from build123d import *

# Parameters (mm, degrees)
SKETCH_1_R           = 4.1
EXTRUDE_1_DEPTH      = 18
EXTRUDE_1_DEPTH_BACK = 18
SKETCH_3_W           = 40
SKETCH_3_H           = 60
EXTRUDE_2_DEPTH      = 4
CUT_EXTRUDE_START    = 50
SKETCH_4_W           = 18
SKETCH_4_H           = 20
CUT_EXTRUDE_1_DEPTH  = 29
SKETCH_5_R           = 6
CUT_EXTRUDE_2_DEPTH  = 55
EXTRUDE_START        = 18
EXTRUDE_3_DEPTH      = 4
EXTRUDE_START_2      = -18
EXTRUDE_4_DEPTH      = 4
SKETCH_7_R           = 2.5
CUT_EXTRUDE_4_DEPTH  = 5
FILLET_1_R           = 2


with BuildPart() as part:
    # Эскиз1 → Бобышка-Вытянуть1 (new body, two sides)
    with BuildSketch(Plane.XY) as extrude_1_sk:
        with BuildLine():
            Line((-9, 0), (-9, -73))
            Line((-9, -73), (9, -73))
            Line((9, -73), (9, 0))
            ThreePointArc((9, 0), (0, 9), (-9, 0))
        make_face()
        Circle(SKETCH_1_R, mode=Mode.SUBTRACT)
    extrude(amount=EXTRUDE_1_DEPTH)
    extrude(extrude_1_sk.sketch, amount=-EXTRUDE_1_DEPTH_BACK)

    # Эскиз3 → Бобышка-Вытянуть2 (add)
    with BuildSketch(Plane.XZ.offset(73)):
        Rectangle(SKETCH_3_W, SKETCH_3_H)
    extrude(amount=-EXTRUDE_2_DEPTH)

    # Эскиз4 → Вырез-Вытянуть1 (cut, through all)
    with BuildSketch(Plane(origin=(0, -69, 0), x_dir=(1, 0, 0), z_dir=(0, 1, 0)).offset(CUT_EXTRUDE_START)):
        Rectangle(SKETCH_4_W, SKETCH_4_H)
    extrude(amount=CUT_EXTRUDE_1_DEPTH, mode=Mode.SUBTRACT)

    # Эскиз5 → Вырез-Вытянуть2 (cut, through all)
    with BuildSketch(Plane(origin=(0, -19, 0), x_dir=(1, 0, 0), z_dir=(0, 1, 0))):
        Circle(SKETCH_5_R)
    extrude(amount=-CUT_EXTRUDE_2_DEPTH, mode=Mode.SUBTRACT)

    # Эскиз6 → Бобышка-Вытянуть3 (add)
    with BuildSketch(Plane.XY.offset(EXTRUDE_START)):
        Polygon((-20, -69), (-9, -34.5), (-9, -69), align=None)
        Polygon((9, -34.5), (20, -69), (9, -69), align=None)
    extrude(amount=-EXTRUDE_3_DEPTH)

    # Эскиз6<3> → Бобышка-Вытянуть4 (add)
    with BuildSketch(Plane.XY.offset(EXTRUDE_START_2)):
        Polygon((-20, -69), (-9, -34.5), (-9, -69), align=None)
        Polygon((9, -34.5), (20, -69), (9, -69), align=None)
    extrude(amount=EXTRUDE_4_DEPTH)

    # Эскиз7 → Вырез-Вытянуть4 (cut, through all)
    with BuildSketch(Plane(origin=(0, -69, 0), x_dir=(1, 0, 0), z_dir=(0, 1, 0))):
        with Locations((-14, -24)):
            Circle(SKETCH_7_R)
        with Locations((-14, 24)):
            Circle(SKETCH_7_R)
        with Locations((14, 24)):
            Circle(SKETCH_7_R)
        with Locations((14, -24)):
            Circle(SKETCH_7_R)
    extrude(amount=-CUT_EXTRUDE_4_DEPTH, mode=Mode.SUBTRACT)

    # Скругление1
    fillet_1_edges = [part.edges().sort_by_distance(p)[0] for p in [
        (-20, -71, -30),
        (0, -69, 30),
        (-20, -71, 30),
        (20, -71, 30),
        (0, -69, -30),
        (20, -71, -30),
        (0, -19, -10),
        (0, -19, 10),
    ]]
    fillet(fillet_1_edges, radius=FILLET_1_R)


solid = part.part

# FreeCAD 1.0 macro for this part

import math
import FreeCAD as App
import Part
import Sketcher

V = App.Vector


def edges_at(feature, points):
    """Names of the edges that pass closest to the given points."""
    edges = feature.Shape.Edges
    near = lambda p: min(range(len(edges)), key=lambda i: edges[i].distToShape(Part.Vertex(*p))[0])
    return sorted({f"Edge{near(p) + 1}" for p in points})


def add_polygon(sketch, points):
    """Adds a closed chain of lines whose ends are joined by coincident constraints."""
    first, n = sketch.GeometryCount, len(points)
    for a, b in zip(points, points[1:] + points[:1]):
        sketch.addGeometry(Part.LineSegment(App.Vector(*a, 0), App.Vector(*b, 0)), False)
    for i in range(n):
        sketch.addConstraint(Sketcher.Constraint("Coincident", first + i, 2, first + (i + 1) % n, 1))

doc = App.newDocument("Part")
body = doc.addObject("PartDesign::Body", "Body")

sketch1 = body.newObject("Sketcher::SketchObject", "Sketch")
sketch1.AttachmentSupport = (doc.getObject("XY_Plane"), [""])
sketch1.MapMode = "FlatFace"
sketch1.addGeometry(Part.LineSegment(V(-9, 0, 0), V(-9, -73, 0)), False)
sketch1.addGeometry(Part.LineSegment(V(-9, -73, 0), V(9, -73, 0)), False)
sketch1.addGeometry(Part.LineSegment(V(9, -73, 0), V(9, 0, 0)), False)
sketch1.addGeometry(Part.ArcOfCircle(Part.Circle(V(0, 0, 0), V(0, 0, 1), 9), math.radians(0), math.radians(180)), False)
sketch1.addGeometry(Part.Circle(V(0, 0, 0), V(0, 0, 1), 4.1), False)
sketch1.addConstraint(Sketcher.Constraint("Coincident", 0, 2, 1, 1))
sketch1.addConstraint(Sketcher.Constraint("Coincident", 1, 2, 2, 1))
sketch1.addConstraint(Sketcher.Constraint("Tangent", 2, 2, 3, 1))
sketch1.addConstraint(Sketcher.Constraint("Tangent", 3, 2, 0, 1))
sketch1.addConstraint(Sketcher.Constraint("Vertical", 0))
sketch1.addConstraint(Sketcher.Constraint("Horizontal", 1))
sketch1.addConstraint(Sketcher.Constraint("Vertical", 2))
sketch1.addConstraint(Sketcher.Constraint("Coincident", 3, 3, -1, 1))
sketch1.addConstraint(Sketcher.Constraint("Coincident", 4, 3, -1, 1))
sketch1.addConstraint(Sketcher.Constraint("Radius", 3, 9.0))
sketch1.addConstraint(Sketcher.Constraint("Diameter", 4, 8.2))
sketch1.addConstraint(Sketcher.Constraint("DistanceY", 0, 2, 0, 1, 73.0))
pad1 = body.newObject("PartDesign::Pad", "Pad")
pad1.Profile = sketch1
pad1.Type = "TwoLengths"
pad1.Length = 18
pad1.Length2 = 18

sketch2 = body.newObject("Sketcher::SketchObject", "Sketch001")
sketch2.AttachmentSupport = (doc.getObject("XZ_Plane"), [""])
sketch2.MapMode = "FlatFace"
sketch2.AttachmentOffset = App.Placement(V(0, 0, 73), App.Rotation())
add_polygon(sketch2, [(-20, 30), (-20, -30), (20, -30), (20, 30)])
sketch2.addConstraint(Sketcher.Constraint("Vertical", 0))
sketch2.addConstraint(Sketcher.Constraint("Horizontal", 1))
sketch2.addConstraint(Sketcher.Constraint("Vertical", 2))
sketch2.addConstraint(Sketcher.Constraint("Horizontal", 3))
sketch2.addConstraint(Sketcher.Constraint("Symmetric", 0, 2, 2, 2, -1, 1))
sketch2.addConstraint(Sketcher.Constraint("DistanceX", 1, 1, 1, 2, 40.0))
sketch2.addConstraint(Sketcher.Constraint("DistanceY", 0, 2, 0, 1, 60.0))
pad2 = body.newObject("PartDesign::Pad", "Pad001")
pad2.Profile = sketch2
pad2.Length = 4
pad2.Reversed = True

sketch3 = body.newObject("Sketcher::SketchObject", "Sketch002")
sketch3.AttachmentSupport = (doc.getObject("XZ_Plane"), [""])
sketch3.MapMode = "FlatFace"
sketch3.AttachmentOffset = App.Placement(V(0, 0, 19), App.Rotation())
add_polygon(sketch3, [(-9, -10), (-9, 10), (9, 10), (9, -10)])
sketch3.addConstraint(Sketcher.Constraint("Vertical", 0))
sketch3.addConstraint(Sketcher.Constraint("Horizontal", 1))
sketch3.addConstraint(Sketcher.Constraint("Vertical", 2))
sketch3.addConstraint(Sketcher.Constraint("Horizontal", 3))
sketch3.addConstraint(Sketcher.Constraint("Symmetric", 0, 2, 2, 2, -1, 1))
sketch3.addConstraint(Sketcher.Constraint("DistanceX", 1, 1, 1, 2, 18.0))
sketch3.addConstraint(Sketcher.Constraint("DistanceY", 0, 1, 0, 2, 20.0))
pocket1 = body.newObject("PartDesign::Pocket", "Pocket")
pocket1.Profile = sketch3
pocket1.Type = "ThroughAll"

sketch4 = body.newObject("Sketcher::SketchObject", "Sketch003")
sketch4.AttachmentSupport = (doc.getObject("XZ_Plane"), [""])
sketch4.MapMode = "FlatFace"
sketch4.AttachmentOffset = App.Placement(V(0, 0, 19), App.Rotation())
sketch4.addGeometry(Part.Circle(V(0, 0, 0), V(0, 0, 1), 6), False)
sketch4.addConstraint(Sketcher.Constraint("Coincident", 0, 3, -1, 1))
sketch4.addConstraint(Sketcher.Constraint("Diameter", 0, 12.0))
pocket2 = body.newObject("PartDesign::Pocket", "Pocket001")
pocket2.Profile = sketch4
pocket2.Type = "ThroughAll"
pocket2.Reversed = True

sketch5 = body.newObject("Sketcher::SketchObject", "Sketch004")
sketch5.AttachmentSupport = (doc.getObject("XY_Plane"), [""])
sketch5.MapMode = "FlatFace"
sketch5.AttachmentOffset = App.Placement(V(0, 0, 18), App.Rotation())
add_polygon(sketch5, [(-9, -34.5), (-20, -69), (-9, -69)])
add_polygon(sketch5, [(20, -69), (9, -34.5), (9, -69)])
sketch5.addConstraint(Sketcher.Constraint("Horizontal", 1))
sketch5.addConstraint(Sketcher.Constraint("Vertical", 2))
sketch5.addConstraint(Sketcher.Constraint("Vertical", 4))
sketch5.addConstraint(Sketcher.Constraint("Horizontal", 5))
sketch5.addConstraint(Sketcher.Constraint("Symmetric", 2, 2, 3, 2, -2))
sketch5.addConstraint(Sketcher.Constraint("Symmetric", 0, 2, 5, 2, -2))
sketch5.addConstraint(Sketcher.Constraint("DistanceX", 1, 1, 1, 2, 11.0))
sketch5.addConstraint(Sketcher.Constraint("DistanceY", 2, 1, 2, 2, 34.5))
sketch5.addConstraint(Sketcher.Constraint("DistanceX", 0, 2, -1, 1, 20.0))
sketch5.addConstraint(Sketcher.Constraint("DistanceY", 0, 2, -1, 1, 69.0))
pad3 = body.newObject("PartDesign::Pad", "Pad002")
pad3.Profile = sketch5
pad3.Length = 4
pad3.Reversed = True

sketch6 = body.newObject("Sketcher::SketchObject", "Sketch005")
sketch6.AttachmentSupport = (doc.getObject("XY_Plane"), [""])
sketch6.MapMode = "FlatFace"
sketch6.AttachmentOffset = App.Placement(V(0, 0, -18), App.Rotation())
add_polygon(sketch6, [(-9, -34.5), (-20, -69), (-9, -69)])
add_polygon(sketch6, [(20, -69), (9, -34.5), (9, -69)])
sketch6.addConstraint(Sketcher.Constraint("Horizontal", 1))
sketch6.addConstraint(Sketcher.Constraint("Vertical", 2))
sketch6.addConstraint(Sketcher.Constraint("Vertical", 4))
sketch6.addConstraint(Sketcher.Constraint("Horizontal", 5))
sketch6.addConstraint(Sketcher.Constraint("Symmetric", 2, 2, 3, 2, -2))
sketch6.addConstraint(Sketcher.Constraint("Symmetric", 0, 2, 5, 2, -2))
sketch6.addConstraint(Sketcher.Constraint("DistanceX", 1, 1, 1, 2, 11.0))
sketch6.addConstraint(Sketcher.Constraint("DistanceY", 2, 1, 2, 2, 34.5))
sketch6.addConstraint(Sketcher.Constraint("DistanceX", 0, 2, -1, 1, 20.0))
sketch6.addConstraint(Sketcher.Constraint("DistanceY", 0, 2, -1, 1, 69.0))
pad4 = body.newObject("PartDesign::Pad", "Pad003")
pad4.Profile = sketch6
pad4.Length = 4

sketch7 = body.newObject("Sketcher::SketchObject", "Sketch006")
sketch7.AttachmentSupport = (doc.getObject("XZ_Plane"), [""])
sketch7.MapMode = "FlatFace"
sketch7.AttachmentOffset = App.Placement(V(0, 0, 69), App.Rotation())
sketch7.addGeometry(Part.Circle(V(-14, 24, 0), V(0, 0, 1), 2.5), False)
sketch7.addGeometry(Part.Circle(V(-14, -24, 0), V(0, 0, 1), 2.5), False)
sketch7.addGeometry(Part.Circle(V(14, -24, 0), V(0, 0, 1), 2.5), False)
sketch7.addGeometry(Part.Circle(V(14, 24, 0), V(0, 0, 1), 2.5), False)
sketch7.addConstraint(Sketcher.Constraint("Equal", 0, 1))
sketch7.addConstraint(Sketcher.Constraint("Equal", 1, 2))
sketch7.addConstraint(Sketcher.Constraint("Equal", 2, 3))
sketch7.addConstraint(Sketcher.Constraint("Symmetric", 0, 3, 2, 3, -1, 1))
sketch7.addConstraint(Sketcher.Constraint("Symmetric", 1, 3, 3, 3, -1, 1))
sketch7.addConstraint(Sketcher.Constraint("Symmetric", 1, 3, 2, 3, -2))
sketch7.addConstraint(Sketcher.Constraint("Diameter", 0, 5.0))
sketch7.addConstraint(Sketcher.Constraint("DistanceX", 0, 3, -1, 1, 14.0))
sketch7.addConstraint(Sketcher.Constraint("DistanceY", -1, 1, 0, 3, 24.0))
pocket3 = body.newObject("PartDesign::Pocket", "Pocket002")
pocket3.Profile = sketch7
pocket3.Type = "ThroughAll"
pocket3.Reversed = True
doc.recompute()

fillet = body.newObject("PartDesign::Fillet", "Fillet")
fillet.Base = (pocket3, edges_at(pocket3, [
    (-20, -71, -30),
    (0, -69, 30),
    (-20, -71, 30),
    (20, -71, 30),
    (0, -69, -30),
    (20, -71, -30),
    (0, -19, -10),
    (0, -19, 10),
]))
fillet.Radius = 2

doc.recompute()
